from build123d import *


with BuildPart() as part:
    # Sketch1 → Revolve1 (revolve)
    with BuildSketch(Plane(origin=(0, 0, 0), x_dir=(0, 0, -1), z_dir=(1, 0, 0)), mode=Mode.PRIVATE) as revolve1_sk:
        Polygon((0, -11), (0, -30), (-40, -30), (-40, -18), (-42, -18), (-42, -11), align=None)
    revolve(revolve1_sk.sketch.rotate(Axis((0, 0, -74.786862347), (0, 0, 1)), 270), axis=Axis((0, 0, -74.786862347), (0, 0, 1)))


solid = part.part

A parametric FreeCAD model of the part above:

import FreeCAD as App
import Part
import Sketcher
Q = App.Units.Quantity


def add_polygon(sketch, points):
    """Adds a closed chain of lines whose ends are joined by coincident constraints."""
    first, n = sketch.GeometryCount, len(points)
    for a, b in zip(points, points[1:] + points[:1]):
        sketch.addGeometry(Part.LineSegment(App.Vector(*a, 0), App.Vector(*b, 0)), False)
    for i in range(n):
        sketch.addConstraint(Sketcher.Constraint("Coincident", first + i, 2, first + (i + 1) % n, 1))

doc = App.newDocument("Part")
body = doc.addObject("PartDesign::Body", "Body")

# Sketch on YZ plane
sketch1 = body.newObject("Sketcher::SketchObject", "Sketch")
sketch1.AttachmentSupport = (doc.getObject("YZ_Plane"), [""])
sketch1.MapMode = "FlatFace"
add_polygon(sketch1, [(-30, 0), (-11, 0), (-11, 42), (-18, 42), (-18, 40), (-30, 40)])  # lines 0-5
sketch1.addConstraint(Sketcher.Constraint("Horizontal", 0))
sketch1.addConstraint(Sketcher.Constraint("Vertical", 1))
sketch1.addConstraint(Sketcher.Constraint("Horizontal", 2))
sketch1.addConstraint(Sketcher.Constraint("Vertical", 3))
sketch1.addConstraint(Sketcher.Constraint("Horizontal", 4))
sketch1.addConstraint(Sketcher.Constraint("Vertical", 5))
sketch1.addConstraint(Sketcher.Constraint("PointOnObject", 0, 2, -1))
sketch1.addConstraint(Sketcher.Constraint("DistanceX", 0, 1, 0, 2, Q("19 mm")))
sketch1.addConstraint(Sketcher.Constraint("DistanceX", 2, 2, 2, 1, Q("7 mm")))
sketch1.addConstraint(Sketcher.Constraint("DistanceY", 1, 1, 1, 2, Q("42 mm")))
sketch1.addConstraint(Sketcher.Constraint("DistanceY", 3, 2, 3, 1, Q("2 mm")))
sketch1.addConstraint(Sketcher.Constraint("DistanceX", 0, 2, -1, 1, Q("11 mm")))
revolution = body.newObject("PartDesign::Revolution", "Revolution")
revolution.Profile = sketch1
revolution.ReferenceAxis = (sketch1, ["V_Axis"])
revolution.Angle = 360

doc.recompute()
